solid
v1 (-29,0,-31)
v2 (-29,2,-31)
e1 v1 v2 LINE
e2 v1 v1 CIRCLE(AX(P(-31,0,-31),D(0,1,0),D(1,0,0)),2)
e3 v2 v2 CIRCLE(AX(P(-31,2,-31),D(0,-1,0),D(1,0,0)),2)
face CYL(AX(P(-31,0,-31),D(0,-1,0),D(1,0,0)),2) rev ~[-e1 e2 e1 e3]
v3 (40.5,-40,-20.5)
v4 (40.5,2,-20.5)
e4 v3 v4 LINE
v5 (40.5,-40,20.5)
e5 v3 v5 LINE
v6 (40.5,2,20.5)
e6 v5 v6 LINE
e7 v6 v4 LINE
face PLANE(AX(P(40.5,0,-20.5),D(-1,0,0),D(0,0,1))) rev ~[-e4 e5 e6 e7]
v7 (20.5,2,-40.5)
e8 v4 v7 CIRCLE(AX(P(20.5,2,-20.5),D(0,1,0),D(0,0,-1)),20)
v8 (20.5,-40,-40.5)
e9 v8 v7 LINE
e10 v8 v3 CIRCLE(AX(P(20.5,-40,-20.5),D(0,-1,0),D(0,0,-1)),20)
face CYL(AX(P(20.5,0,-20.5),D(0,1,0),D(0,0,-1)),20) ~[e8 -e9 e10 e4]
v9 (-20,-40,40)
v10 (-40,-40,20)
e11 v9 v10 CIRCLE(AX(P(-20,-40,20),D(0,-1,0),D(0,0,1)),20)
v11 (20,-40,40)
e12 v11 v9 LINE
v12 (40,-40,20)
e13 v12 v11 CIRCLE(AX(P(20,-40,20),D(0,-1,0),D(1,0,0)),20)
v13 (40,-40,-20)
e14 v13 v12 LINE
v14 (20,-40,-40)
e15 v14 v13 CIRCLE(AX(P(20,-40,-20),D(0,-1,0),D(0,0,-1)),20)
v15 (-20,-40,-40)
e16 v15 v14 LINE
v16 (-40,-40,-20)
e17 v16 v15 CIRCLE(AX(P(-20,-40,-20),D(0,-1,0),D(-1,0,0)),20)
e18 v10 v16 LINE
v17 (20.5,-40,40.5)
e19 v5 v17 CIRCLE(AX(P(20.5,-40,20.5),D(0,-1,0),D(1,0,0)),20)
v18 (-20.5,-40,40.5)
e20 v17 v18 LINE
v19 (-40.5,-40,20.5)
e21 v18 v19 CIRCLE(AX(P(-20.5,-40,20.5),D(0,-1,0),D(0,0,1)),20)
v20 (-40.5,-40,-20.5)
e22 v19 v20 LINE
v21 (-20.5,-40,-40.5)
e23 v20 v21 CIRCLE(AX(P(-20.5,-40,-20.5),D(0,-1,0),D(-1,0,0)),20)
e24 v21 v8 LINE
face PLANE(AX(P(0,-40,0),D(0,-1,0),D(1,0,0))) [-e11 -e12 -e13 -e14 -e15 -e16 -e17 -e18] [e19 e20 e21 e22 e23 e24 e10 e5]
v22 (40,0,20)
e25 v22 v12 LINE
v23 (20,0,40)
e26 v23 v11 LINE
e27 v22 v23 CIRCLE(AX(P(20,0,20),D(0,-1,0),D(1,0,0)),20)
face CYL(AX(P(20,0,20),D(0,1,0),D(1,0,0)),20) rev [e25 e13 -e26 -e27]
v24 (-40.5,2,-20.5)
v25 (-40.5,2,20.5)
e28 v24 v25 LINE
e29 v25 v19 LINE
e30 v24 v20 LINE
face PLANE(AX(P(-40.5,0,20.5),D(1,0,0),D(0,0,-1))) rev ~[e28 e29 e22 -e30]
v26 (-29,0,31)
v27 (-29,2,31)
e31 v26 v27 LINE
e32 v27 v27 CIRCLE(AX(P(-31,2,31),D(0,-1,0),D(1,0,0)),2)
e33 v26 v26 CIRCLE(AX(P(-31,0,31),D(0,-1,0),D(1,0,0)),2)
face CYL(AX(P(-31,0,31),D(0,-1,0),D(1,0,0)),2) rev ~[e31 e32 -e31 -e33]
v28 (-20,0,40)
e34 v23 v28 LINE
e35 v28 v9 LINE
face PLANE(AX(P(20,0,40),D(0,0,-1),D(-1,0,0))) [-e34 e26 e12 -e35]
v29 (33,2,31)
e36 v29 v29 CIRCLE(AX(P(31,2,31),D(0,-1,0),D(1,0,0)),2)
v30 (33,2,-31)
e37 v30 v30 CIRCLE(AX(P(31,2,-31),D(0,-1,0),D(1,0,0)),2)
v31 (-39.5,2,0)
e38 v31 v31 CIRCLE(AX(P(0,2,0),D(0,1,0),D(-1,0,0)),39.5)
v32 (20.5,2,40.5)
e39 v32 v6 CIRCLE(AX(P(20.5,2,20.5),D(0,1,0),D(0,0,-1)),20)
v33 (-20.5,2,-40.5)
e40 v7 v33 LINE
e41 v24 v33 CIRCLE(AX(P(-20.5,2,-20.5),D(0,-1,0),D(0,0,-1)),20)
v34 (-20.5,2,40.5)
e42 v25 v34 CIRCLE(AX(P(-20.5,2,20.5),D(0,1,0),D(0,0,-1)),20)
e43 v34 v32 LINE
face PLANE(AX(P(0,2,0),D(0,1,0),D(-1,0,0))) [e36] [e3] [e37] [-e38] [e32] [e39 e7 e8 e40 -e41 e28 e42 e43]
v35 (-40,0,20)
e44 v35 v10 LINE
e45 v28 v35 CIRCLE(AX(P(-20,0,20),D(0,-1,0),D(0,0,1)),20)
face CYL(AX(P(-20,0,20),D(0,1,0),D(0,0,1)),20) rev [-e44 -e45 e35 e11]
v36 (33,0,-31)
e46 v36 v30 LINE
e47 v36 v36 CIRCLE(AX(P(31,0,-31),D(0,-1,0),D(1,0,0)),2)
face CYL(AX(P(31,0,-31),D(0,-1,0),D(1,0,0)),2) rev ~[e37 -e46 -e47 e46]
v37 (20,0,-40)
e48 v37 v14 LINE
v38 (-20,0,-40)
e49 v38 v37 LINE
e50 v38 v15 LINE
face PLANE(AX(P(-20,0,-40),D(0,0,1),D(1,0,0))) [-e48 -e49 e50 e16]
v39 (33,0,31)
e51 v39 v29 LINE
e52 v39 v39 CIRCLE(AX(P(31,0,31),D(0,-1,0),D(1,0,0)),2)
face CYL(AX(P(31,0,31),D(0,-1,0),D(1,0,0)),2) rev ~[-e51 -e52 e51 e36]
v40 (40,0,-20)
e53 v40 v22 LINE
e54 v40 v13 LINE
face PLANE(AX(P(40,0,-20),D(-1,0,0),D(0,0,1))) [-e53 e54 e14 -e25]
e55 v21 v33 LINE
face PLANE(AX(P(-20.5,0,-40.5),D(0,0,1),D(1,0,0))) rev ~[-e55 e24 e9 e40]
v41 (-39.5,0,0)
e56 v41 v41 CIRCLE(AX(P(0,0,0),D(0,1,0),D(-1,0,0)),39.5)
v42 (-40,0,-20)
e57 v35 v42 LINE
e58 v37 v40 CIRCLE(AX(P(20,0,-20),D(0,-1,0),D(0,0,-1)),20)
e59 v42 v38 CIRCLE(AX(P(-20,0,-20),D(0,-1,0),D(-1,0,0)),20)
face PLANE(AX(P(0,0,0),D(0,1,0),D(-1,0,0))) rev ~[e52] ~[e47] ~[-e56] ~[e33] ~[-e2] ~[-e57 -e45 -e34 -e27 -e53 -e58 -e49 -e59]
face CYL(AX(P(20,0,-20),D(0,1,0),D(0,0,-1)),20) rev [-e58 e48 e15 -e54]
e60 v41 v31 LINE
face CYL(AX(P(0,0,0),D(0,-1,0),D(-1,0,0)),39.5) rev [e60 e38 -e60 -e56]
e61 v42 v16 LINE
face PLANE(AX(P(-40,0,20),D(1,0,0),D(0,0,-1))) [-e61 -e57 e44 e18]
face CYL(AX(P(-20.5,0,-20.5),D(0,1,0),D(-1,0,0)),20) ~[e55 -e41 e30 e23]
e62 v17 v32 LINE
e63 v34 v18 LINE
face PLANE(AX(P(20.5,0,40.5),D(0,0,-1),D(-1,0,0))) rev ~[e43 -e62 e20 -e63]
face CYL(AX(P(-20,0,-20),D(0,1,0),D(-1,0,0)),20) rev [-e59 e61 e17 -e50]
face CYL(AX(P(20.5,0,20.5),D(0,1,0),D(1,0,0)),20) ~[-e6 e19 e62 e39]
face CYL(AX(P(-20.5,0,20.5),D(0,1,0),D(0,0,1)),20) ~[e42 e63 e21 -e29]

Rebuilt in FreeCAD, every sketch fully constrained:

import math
import FreeCAD as App
import Part
import Sketcher

V = App.Vector


def edges_at(feature, points):
    """Names of the edges that pass closest to the given points."""
    edges = feature.Shape.Edges
    near = lambda p: min(range(len(edges)), key=lambda i: edges[i].distToShape(Part.Vertex(*p))[0])
    return sorted({f"Edge{near(p) + 1}" for p in points})

doc = App.newDocument("Part")
body = doc.addObject("PartDesign::Body", "Body")

sketch1 = body.newObject("Sketcher::SketchObject", "Sketch")
sketch1.AttachmentSupport = (doc.getObject("XZ_Plane"), [""])
sketch1.MapMode = "FlatFace"
sketch1.addGeometry([
    Part.Circle(V(0, 0, 0), V(0, 0, 1), 40),
    Part.Circle(V(0, 0, 0), V(0, 0, 1), 40),
], False)
sketch1.addConstraint([
    Sketcher.Constraint("Coincident", 0, 3, -1, 1),
    Sketcher.Constraint("Coincident", 1, 3, -1, 1),
    Sketcher.Constraint("Diameter", 0, 81.0),
    Sketcher.Constraint("Diameter", 1, 79.0),
])
pad1 = body.newObject("PartDesign::Pad", "Pad")
pad1.Profile = sketch1
pad1.Length = 2
pad1.Reversed = True

sketch2 = body.newObject("Sketcher::SketchObject", "Sketch001")
sketch2.AttachmentSupport = (doc.getObject("XZ_Plane"), [""])
sketch2.MapMode = "FlatFace"
sketch2.AttachmentOffset = App.Placement(V(0, 0, -2), App.Rotation())
sketch2.addGeometry([
    Part.LineSegment(V(-40, 0, 0), V(-40, 40, 0)),
    Part.LineSegment(V(-40, 40, 0), V(0, 40, 0)),
    Part.ArcOfCircle(Part.Circle(V(0, 0, 0), V(0, 0, 1), 40), math.radians(90), math.radians(180)),
    Part.ArcOfCircle(Part.Circle(V(0, 0, 0), V(0, 0, 1), 40), math.radians(0), math.radians(90)),
    Part.LineSegment(V(0, 40, 0), V(40, 40, 0)),
    Part.LineSegment(V(40, 40, 0), V(40, 0, 0)),
    Part.LineSegment(V(-40, -40, 0), V(-40, 0, 0)),
    Part.ArcOfCircle(Part.Circle(V(0, 0, 0), V(0, 0, 1), 40), math.radians(-180), math.radians(-90)),
    Part.LineSegment(V(0, -40, 0), V(-40, -40, 0)),
    Part.ArcOfCircle(Part.Circle(V(0, 0, 0), V(0, 0, 1), 40), math.radians(-90), math.radians(0)),
    Part.LineSegment(V(40, 0, 0), V(40, -40, 0)),
    Part.LineSegment(V(40, -40, 0), V(0, -40, 0)),
], False)
sketch2.addConstraint([
    Sketcher.Constraint("Coincident", 0, 2, 1, 1),
    Sketcher.Constraint("Tangent", 1, 2, 2, 1),
    Sketcher.Constraint("Tangent", 2, 2, 0, 1),
    Sketcher.Constraint("Tangent", 3, 2, 4, 1),
    Sketcher.Constraint("Coincident", 4, 2, 5, 1),
    Sketcher.Constraint("Tangent", 5, 2, 3, 1),
    Sketcher.Constraint("Tangent", 6, 2, 7, 1),
    Sketcher.Constraint("Tangent", 7, 2, 8, 1),
    Sketcher.Constraint("Coincident", 8, 2, 6, 1),
    Sketcher.Constraint("Tangent", 9, 2, 10, 1),
    Sketcher.Constraint("Coincident", 10, 2, 11, 1),
    Sketcher.Constraint("Tangent", 11, 2, 9, 1),
    Sketcher.Constraint("Vertical", 0),
    Sketcher.Constraint("Horizontal", 1),
    Sketcher.Constraint("Horizontal", 4),
    Sketcher.Constraint("Vertical", 5),
    Sketcher.Constraint("Vertical", 6),
    Sketcher.Constraint("Horizontal", 8),
    Sketcher.Constraint("Vertical", 10),
    Sketcher.Constraint("Horizontal", 11),
    Sketcher.Constraint("Coincident", 2, 3, -1, 1),
    Sketcher.Constraint("Coincident", 3, 3, -1, 1),
    Sketcher.Constraint("Coincident", 7, 3, -1, 1),
    Sketcher.Constraint("Coincident", 9, 3, -1, 1),
    Sketcher.Constraint("Equal", 2, 3),
    Sketcher.Constraint("Equal", 3, 7),
    Sketcher.Constraint("Equal", 7, 9),
    Sketcher.Constraint("Radius", 2, 40.5),
])
pad2 = body.newObject("PartDesign::Pad", "Pad001")
pad2.Profile = sketch2
pad2.Length = 2
doc.recompute()

fillet = body.newObject("PartDesign::Fillet", "Fillet")
fillet.Base = (pad2, edges_at(pad2, [
    (-40.5, 1, -40.5),
    (40.5, 1, -40.5),
    (40.5, 1, 40.5),
    (-40.5, 1, 40.5),
]))
fillet.Radius = 20

sketch3 = body.newObject("Sketcher::SketchObject", "Sketch002")
sketch3.AttachmentSupport = (doc.getObject("XZ_Plane"), [""])
sketch3.MapMode = "FlatFace"
sketch3.addGeometry([
    Part.LineSegment(V(20, 40, 0), V(-20, 40, 0)),
    Part.ArcOfCircle(Part.Circle(V(-20, 20, 0), V(0, 0, 1), 20), math.radians(90), math.radians(180)),
    Part.LineSegment(V(-40, 20, 0), V(-40, -20, 0)),
    Part.ArcOfCircle(Part.Circle(V(-20, -20, 0), V(0, 0, 1), 20), math.radians(180), math.radians(270)),
    Part.LineSegment(V(-20, -40, 0), V(20, -40, 0)),
    Part.ArcOfCircle(Part.Circle(V(20, -20, 0), V(0, 0, 1), 20), math.radians(-90), math.radians(0)),
    Part.LineSegment(V(40, -20, 0), V(40, 20, 0)),
    Part.ArcOfCircle(Part.Circle(V(20, 20, 0), V(0, 0, 1), 20), math.radians(0), math.radians(90)),
    Part.LineSegment(V(20, -40, 0), V(-20, -40, 0)),
    Part.ArcOfCircle(Part.Circle(V(-20, -20, 0), V(0, 0, 1), 20), math.radians(180), math.radians(270)),
    Part.LineSegment(V(-40, -20, 0), V(-40, 20, 0)),
    Part.ArcOfCircle(Part.Circle(V(-20, 20, 0), V(0, 0, 1), 20), math.radians(90), math.radians(180)),
    Part.LineSegment(V(-20, 40, 0), V(20, 40, 0)),
    Part.ArcOfCircle(Part.Circle(V(20, 20, 0), V(0, 0, 1), 20), math.radians(0), math.radians(90)),
    Part.LineSegment(V(40, 20, 0), V(40, -20, 0)),
    Part.ArcOfCircle(Part.Circle(V(20, -20, 0), V(0, 0, 1), 20), math.radians(-90), math.radians(0)),
], False)
sketch3.addConstraint([
    Sketcher.Constraint("Tangent", 0, 2, 1, 1),
    Sketcher.Constraint("Tangent", 1, 2, 2, 1),
    Sketcher.Constraint("Tangent", 2, 2, 3, 1),
    Sketcher.Constraint("Tangent", 3, 2, 4, 1),
    Sketcher.Constraint("Tangent", 4, 2, 5, 1),
    Sketcher.Constraint("Tangent", 5, 2, 6, 1),
    Sketcher.Constraint("Tangent", 6, 2, 7, 1),
    Sketcher.Constraint("Tangent", 7, 2, 0, 1),
    Sketcher.Constraint("Tangent", 8, 2, 9, 2),
    Sketcher.Constraint("Tangent", 9, 1, 10, 1),
    Sketcher.Constraint("Tangent", 10, 2, 11, 2),
    Sketcher.Constraint("Tangent", 11, 1, 12, 1),
    Sketcher.Constraint("Tangent", 12, 2, 13, 2),
    Sketcher.Constraint("Tangent", 13, 1, 14, 1),
    Sketcher.Constraint("Tangent", 14, 2, 15, 2),
    Sketcher.Constraint("Tangent", 15, 1, 8, 1),
    Sketcher.Constraint("Horizontal", 0),
    Sketcher.Constraint("Vertical", 2),
    Sketcher.Constraint("Horizontal", 4),
    Sketcher.Constraint("Vertical", 6),
    Sketcher.Constraint("Horizontal", 8),
    Sketcher.Constraint("Vertical", 10),
    Sketcher.Constraint("Horizontal", 12),
    Sketcher.Constraint("Vertical", 14),
    Sketcher.Constraint("Equal", 1, 3),
    Sketcher.Constraint("Equal", 3, 5),
    Sketcher.Constraint("Equal", 5, 7),
    Sketcher.Constraint("Equal", 7, 9),
    Sketcher.Constraint("Equal", 9, 11),
    Sketcher.Constraint("Equal", 11, 13),
    Sketcher.Constraint("Equal", 13, 15),
    Sketcher.Constraint("Symmetric", 1, 3, 5, 3, -1, 1),
    Sketcher.Constraint("Symmetric", 9, 3, 13, 3, -1, 1),
    Sketcher.Constraint("Equal", 4, 2),
    Sketcher.Constraint("Equal", 12, 10),
    Sketcher.Constraint("Radius", 1, 20.0),
    Sketcher.Constraint("DistanceX", 9, 3, -1, 1, 20.0),
    Sketcher.Constraint("DistanceX", 0, 2, 0, 1, 41.0),
])
pad3 = body.newObject("PartDesign::Pad", "Pad002")
pad3.Profile = sketch3
pad3.Length = 40

sketch4 = body.newObject("Sketcher::SketchObject", "Sketch003")
sketch4.AttachmentSupport = (doc.getObject("XZ_Plane"), [""])
sketch4.MapMode = "FlatFace"
sketch4.addGeometry([
    Part.Circle(V(-31, -31, 0), V(0, 0, 1), 2),
    Part.Circle(V(31, -31, 0), V(0, 0, 1), 2),
    Part.Circle(V(31, 31, 0), V(0, 0, 1), 2),
    Part.Circle(V(-31, 31, 0), V(0, 0, 1), 2),
], False)
sketch4.addConstraint([
    Sketcher.Constraint("Equal", 0, 1),
    Sketcher.Constraint("Equal", 1, 2),
    Sketcher.Constraint("Equal", 2, 3),
    Sketcher.Constraint("Symmetric", 0, 3, 2, 3, -1, 1),
    Sketcher.Constraint("Symmetric", 1, 3, 3, 3, -1, 1),
    Sketcher.Constraint("Symmetric", 0, 3, 1, 3, -2),
    Sketcher.Constraint("Diameter", 0, 4.0),
    Sketcher.Constraint("DistanceX", 0, 3, -1, 1, 31.0),
    Sketcher.Constraint("DistanceY", 0, 3, -1, 1, 31.0),
])
pocket1 = body.newObject("PartDesign::Pocket", "Pocket")
pocket1.Profile = sketch4
pocket1.Length = 10

doc.recompute()
